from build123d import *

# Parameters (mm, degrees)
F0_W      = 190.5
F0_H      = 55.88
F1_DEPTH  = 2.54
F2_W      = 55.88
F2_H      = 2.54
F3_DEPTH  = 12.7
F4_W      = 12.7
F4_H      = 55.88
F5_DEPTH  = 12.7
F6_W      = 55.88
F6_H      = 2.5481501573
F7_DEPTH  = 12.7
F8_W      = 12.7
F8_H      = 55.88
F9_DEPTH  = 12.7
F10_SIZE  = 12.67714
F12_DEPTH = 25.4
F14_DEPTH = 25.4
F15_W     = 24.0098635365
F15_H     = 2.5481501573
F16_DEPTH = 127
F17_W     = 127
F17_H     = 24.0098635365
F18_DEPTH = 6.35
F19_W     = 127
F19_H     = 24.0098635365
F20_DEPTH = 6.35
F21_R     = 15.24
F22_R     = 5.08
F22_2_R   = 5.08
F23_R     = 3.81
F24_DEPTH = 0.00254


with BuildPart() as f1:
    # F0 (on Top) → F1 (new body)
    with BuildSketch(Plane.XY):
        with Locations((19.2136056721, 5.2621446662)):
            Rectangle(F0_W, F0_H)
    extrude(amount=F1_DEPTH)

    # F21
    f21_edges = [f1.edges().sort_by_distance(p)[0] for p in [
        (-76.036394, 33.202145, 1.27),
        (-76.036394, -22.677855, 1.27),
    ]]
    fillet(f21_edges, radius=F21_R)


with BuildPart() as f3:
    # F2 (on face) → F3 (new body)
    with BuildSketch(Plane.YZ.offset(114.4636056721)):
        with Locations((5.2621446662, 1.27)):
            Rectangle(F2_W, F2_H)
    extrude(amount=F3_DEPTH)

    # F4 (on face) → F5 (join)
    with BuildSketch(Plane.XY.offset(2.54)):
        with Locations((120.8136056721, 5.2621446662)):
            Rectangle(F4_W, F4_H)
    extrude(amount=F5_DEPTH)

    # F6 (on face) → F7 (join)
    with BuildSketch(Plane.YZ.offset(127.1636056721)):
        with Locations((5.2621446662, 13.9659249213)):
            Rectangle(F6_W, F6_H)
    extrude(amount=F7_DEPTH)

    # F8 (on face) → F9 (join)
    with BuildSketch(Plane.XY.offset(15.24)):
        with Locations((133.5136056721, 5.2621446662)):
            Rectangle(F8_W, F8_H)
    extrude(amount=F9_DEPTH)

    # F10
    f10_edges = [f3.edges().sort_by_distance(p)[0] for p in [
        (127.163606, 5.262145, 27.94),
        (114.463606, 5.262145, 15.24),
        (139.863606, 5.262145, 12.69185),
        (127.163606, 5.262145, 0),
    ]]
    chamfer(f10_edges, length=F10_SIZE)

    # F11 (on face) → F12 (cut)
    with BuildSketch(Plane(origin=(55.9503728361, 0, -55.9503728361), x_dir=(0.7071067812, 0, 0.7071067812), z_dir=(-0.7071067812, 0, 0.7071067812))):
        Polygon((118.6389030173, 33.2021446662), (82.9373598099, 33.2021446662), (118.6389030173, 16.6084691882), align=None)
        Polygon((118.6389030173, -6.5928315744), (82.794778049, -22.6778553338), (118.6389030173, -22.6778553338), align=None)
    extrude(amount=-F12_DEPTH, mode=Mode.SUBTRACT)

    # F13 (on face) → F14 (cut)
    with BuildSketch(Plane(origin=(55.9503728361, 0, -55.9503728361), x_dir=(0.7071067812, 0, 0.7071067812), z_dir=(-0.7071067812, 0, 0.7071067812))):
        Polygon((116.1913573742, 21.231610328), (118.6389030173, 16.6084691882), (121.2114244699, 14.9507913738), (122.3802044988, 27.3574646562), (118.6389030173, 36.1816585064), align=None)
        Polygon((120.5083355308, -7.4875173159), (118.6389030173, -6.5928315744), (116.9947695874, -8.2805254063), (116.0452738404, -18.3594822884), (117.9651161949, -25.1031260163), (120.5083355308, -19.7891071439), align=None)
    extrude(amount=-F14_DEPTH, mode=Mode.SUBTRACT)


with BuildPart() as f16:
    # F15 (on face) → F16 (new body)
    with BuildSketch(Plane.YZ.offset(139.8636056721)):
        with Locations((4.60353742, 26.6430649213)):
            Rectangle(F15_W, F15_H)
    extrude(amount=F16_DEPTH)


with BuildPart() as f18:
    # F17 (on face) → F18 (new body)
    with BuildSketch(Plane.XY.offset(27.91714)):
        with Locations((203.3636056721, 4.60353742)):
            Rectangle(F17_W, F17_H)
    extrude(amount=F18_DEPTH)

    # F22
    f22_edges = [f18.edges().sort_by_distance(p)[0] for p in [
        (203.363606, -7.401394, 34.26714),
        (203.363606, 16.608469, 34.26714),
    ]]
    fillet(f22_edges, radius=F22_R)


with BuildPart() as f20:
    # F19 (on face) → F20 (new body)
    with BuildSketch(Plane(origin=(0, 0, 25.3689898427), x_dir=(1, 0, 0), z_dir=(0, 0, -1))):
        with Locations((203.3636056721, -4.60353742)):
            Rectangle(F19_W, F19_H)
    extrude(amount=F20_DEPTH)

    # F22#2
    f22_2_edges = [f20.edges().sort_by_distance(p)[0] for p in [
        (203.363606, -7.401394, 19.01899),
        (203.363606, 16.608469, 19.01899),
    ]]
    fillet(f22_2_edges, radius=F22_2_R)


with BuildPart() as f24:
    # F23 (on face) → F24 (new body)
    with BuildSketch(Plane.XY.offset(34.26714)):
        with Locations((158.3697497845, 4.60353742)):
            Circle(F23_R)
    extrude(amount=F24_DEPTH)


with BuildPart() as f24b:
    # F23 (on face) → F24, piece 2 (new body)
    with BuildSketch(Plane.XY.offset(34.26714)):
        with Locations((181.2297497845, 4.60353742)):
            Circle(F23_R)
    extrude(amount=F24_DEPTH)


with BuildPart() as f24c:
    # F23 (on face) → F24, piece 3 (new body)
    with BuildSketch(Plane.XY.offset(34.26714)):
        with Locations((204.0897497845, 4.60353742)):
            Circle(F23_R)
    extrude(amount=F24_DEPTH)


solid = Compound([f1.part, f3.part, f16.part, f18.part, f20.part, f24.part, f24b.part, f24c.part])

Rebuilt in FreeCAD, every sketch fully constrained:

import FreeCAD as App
import Part
import Sketcher

V = App.Vector
Q = App.Units.Quantity


def edges_at(feature, points):
    """Names of the edges that pass closest to the given points."""
    edges = feature.Shape.Edges
    near = lambda p: min(range(len(edges)), key=lambda i: edges[i].distToShape(Part.Vertex(*p))[0])
    return sorted({f"Edge{near(p) + 1}" for p in points})


def add_polygon(sketch, points):
    """Adds a closed chain of lines whose ends are joined by coincident constraints."""
    first, n = sketch.GeometryCount, len(points)
    for a, b in zip(points, points[1:] + points[:1]):
        sketch.addGeometry(Part.LineSegment(App.Vector(*a, 0), App.Vector(*b, 0)), False)
    for i in range(n):
        sketch.addConstraint(Sketcher.Constraint("Coincident", first + i, 2, first + (i + 1) % n, 1))

doc = App.newDocument("Part")
params = doc.addObject("Spreadsheet::Sheet", "Params")
for row, (alias, value) in enumerate([
    ("sketch1_width", "7.5 in"),
    ("sketch1_height", "2.2 in"),
    ("pad1_length", "0.1 in"),
    ("fillet_radius", "0.6 in"),
    ("sketch2_width", "2.2 in"),
    ("sketch2_height", "0.1 in"),
    ("pad2_length", "0.5 in"),
    ("sketch3_width", "0.5 in"),
    ("sketch3_height", "2.2 in"),
    ("pad3_length", "0.5 in"),
    ("sketch4_width", "2.2 in"),
    ("pad4_length", "0.5 in"),
    ("sketch5_width", "0.5 in"),
    ("sketch5_height", "2.2 in"),
    ("pad5_length", "0.5 in"),
    ("chamfer_size", "0.4991 in"),
    ("pocket1_length", "1 in"),
    ("pocket2_length", "1 in"),
    ("pad6_length", "5 in"),
    ("sketch9_width", "5 in"),
    ("pad7_length", "0.25 in"),
    ("fillet2_radius", "0.2 in"),
    ("sketch10_width", "5 in"),
    ("pad8_length", "0.25 in"),
    ("fillet3_radius", "0.2 in"),
    ("sketch11_diameter", "0.3 in"),
    ("pad9_length", "0.0001 in"),
    ("sketch12_diameter", "0.3 in"),
    ("pad10_length", "0.0001 in"),
    ("sketch13_diameter", "0.3 in"),
    ("pad11_length", "0.0001 in"),
], start=1):
    params.set(f"A{row}", alias)
    params.set(f"B{row}", "=" + value)
    params.setAlias(f"B{row}", alias)

body = doc.addObject("PartDesign::Body", "Body")

sketch1 = body.newObject("Sketcher::SketchObject", "Sketch")
sketch1.AttachmentSupport = (doc.getObject("XY_Plane"), [""])
sketch1.MapMode = "FlatFace"
add_polygon(sketch1, [(-76.036394, 33.202145), (-76.036394, -22.677855), (114.463606, -22.677855), (114.463606, 33.202145)])
sketch1.addConstraint(Sketcher.Constraint("Vertical", 0))
sketch1.addConstraint(Sketcher.Constraint("Horizontal", 1))
sketch1.addConstraint(Sketcher.Constraint("Vertical", 2))
sketch1.addConstraint(Sketcher.Constraint("Horizontal", 3))
sketch1.addConstraint(Sketcher.Constraint("DistanceX", 1, 1, 1, 2, Q("7.5 in")))
sketch1.addConstraint(Sketcher.Constraint("DistanceY", 0, 2, 0, 1, Q("2.2 in")))
sketch1.addConstraint(Sketcher.Constraint("DistanceX", 0, 2, -1, 1, Q("76.036394 mm")))
sketch1.addConstraint(Sketcher.Constraint("DistanceY", 0, 2, -1, 1, Q("22.677855 mm")))
sketch1.setExpression("Constraints[8]", "Params.sketch1_width")
sketch1.setExpression("Constraints[9]", "Params.sketch1_height")
pad1 = body.newObject("PartDesign::Pad", "Pad")
pad1.Profile = sketch1
pad1.setExpression("Length", "Params.pad1_length")
doc.recompute()

fillet = body.newObject("PartDesign::Fillet", "Fillet")
fillet.Base = (pad1, edges_at(pad1, [(-76.036, 33.202, 1.27), (-76.036, -22.678, 1.27)]))
fillet.setExpression("Radius", "Params.fillet_radius")
body2 = doc.addObject("PartDesign::Body", "Body001")

sketch2 = body2.newObject("Sketcher::SketchObject", "Sketch001")
sketch2.AttachmentSupport = (doc.getObject("YZ_Plane001"), [""])
sketch2.MapMode = "FlatFace"
sketch2.AttachmentOffset = App.Placement(V(0, 0, 114.463606), App.Rotation())
add_polygon(sketch2, [(-22.677855, 2.54), (-22.677855, 0), (33.202145, 0), (33.202145, 2.54)])
sketch2.addConstraint(Sketcher.Constraint("Vertical", 0))
sketch2.addConstraint(Sketcher.Constraint("Horizontal", 1))
sketch2.addConstraint(Sketcher.Constraint("Vertical", 2))
sketch2.addConstraint(Sketcher.Constraint("Horizontal", 3))
sketch2.addConstraint(Sketcher.Constraint("PointOnObject", 0, 2, -1))
sketch2.addConstraint(Sketcher.Constraint("DistanceX", 1, 1, 1, 2, Q("2.2 in")))
sketch2.addConstraint(Sketcher.Constraint("DistanceY", 0, 2, 0, 1, Q("0.1 in")))
sketch2.addConstraint(Sketcher.Constraint("DistanceX", 0, 2, -1, 1, Q("22.677855 mm")))
sketch2.setExpression("Constraints[9]", "Params.sketch2_width")
sketch2.setExpression("Constraints[10]", "Params.sketch2_height")
pad2 = body2.newObject("PartDesign::Pad", "Pad001")
pad2.Profile = sketch2
pad2.setExpression("Length", "Params.pad2_length")

sketch3 = body2.newObject("Sketcher::SketchObject", "Sketch002")
sketch3.AttachmentSupport = (doc.getObject("XY_Plane001"), [""])
sketch3.MapMode = "FlatFace"
sketch3.AttachmentOffset = App.Placement(V(0, 0, 0.1 * 25.4), App.Rotation())
add_polygon(sketch3, [(114.463606, 33.202145), (114.463606, -22.677855), (127.163606, -22.677855), (127.163606, 33.202145)])
sketch3.addConstraint(Sketcher.Constraint("Vertical", 0))
sketch3.addConstraint(Sketcher.Constraint("Horizontal", 1))
sketch3.addConstraint(Sketcher.Constraint("Vertical", 2))
sketch3.addConstraint(Sketcher.Constraint("Horizontal", 3))
sketch3.addConstraint(Sketcher.Constraint("DistanceX", 1, 1, 1, 2, Q("0.5 in")))
sketch3.addConstraint(Sketcher.Constraint("DistanceY", 0, 2, 0, 1, Q("2.2 in")))
sketch3.addConstraint(Sketcher.Constraint("DistanceX", -1, 1, 0, 2, Q("114.463606 mm")))
sketch3.addConstraint(Sketcher.Constraint("DistanceY", 0, 2, -1, 1, Q("22.677855 mm")))
sketch3.setExpression("Constraints[8]", "Params.sketch3_width")
sketch3.setExpression("Constraints[9]", "Params.sketch3_height")
pad3 = body2.newObject("PartDesign::Pad", "Pad002")
pad3.Profile = sketch3
pad3.setExpression("Length", "Params.pad3_length")

sketch4 = body2.newObject("Sketcher::SketchObject", "Sketch003")
sketch4.AttachmentSupport = (doc.getObject("YZ_Plane001"), [""])
sketch4.MapMode = "FlatFace"
sketch4.AttachmentOffset = App.Placement(V(0, 0, 127.163606), App.Rotation())
add_polygon(sketch4, [(-22.677855, 15.24), (-22.677855, 12.69185), (33.202145, 12.69185), (33.202145, 15.24)])
sketch4.addConstraint(Sketcher.Constraint("Vertical", 0))
sketch4.addConstraint(Sketcher.Constraint("Horizontal", 1))
sketch4.addConstraint(Sketcher.Constraint("Vertical", 2))
sketch4.addConstraint(Sketcher.Constraint("Horizontal", 3))
sketch4.addConstraint(Sketcher.Constraint("DistanceX", 1, 1, 1, 2, Q("2.2 in")))
sketch4.addConstraint(Sketcher.Constraint("DistanceY", -1, 1, 2, 2, Q("0.6 in")))
sketch4.addConstraint(Sketcher.Constraint("DistanceY", 0, 2, 0, 1, Q("2.54815 mm")))
sketch4.addConstraint(Sketcher.Constraint("DistanceX", 0, 2, -1, 1, Q("22.677855 mm")))
sketch4.setExpression("Constraints[8]", "Params.sketch4_width")
pad4 = body2.newObject("PartDesign::Pad", "Pad003")
pad4.Profile = sketch4
pad4.setExpression("Length", "Params.pad4_length")

sketch5 = body2.newObject("Sketcher::SketchObject", "Sketch004")
sketch5.AttachmentSupport = (doc.getObject("XY_Plane001"), [""])
sketch5.MapMode = "FlatFace"
sketch5.AttachmentOffset = App.Placement(V(0, 0, 0.6 * 25.4), App.Rotation())
add_polygon(sketch5, [(127.163606, 33.202145), (127.163606, -22.677855), (139.863606, -22.677855), (139.863606, 33.202145)])
sketch5.addConstraint(Sketcher.Constraint("Vertical", 0))
sketch5.addConstraint(Sketcher.Constraint("Horizontal", 1))
sketch5.addConstraint(Sketcher.Constraint("Vertical", 2))
sketch5.addConstraint(Sketcher.Constraint("Horizontal", 3))
sketch5.addConstraint(Sketcher.Constraint("DistanceX", 1, 1, 1, 2, Q("0.5 in")))
sketch5.addConstraint(Sketcher.Constraint("DistanceY", 0, 2, 0, 1, Q("2.2 in")))
sketch5.addConstraint(Sketcher.Constraint("DistanceX", -1, 1, 0, 2, Q("127.163606 mm")))
sketch5.addConstraint(Sketcher.Constraint("DistanceY", 0, 2, -1, 1, Q("22.677855 mm")))
sketch5.setExpression("Constraints[8]", "Params.sketch5_width")
sketch5.setExpression("Constraints[9]", "Params.sketch5_height")
pad5 = body2.newObject("PartDesign::Pad", "Pad004")
pad5.Profile = sketch5
pad5.setExpression("Length", "Params.pad5_length")
doc.recompute()

chamfer = body2.newObject("PartDesign::Chamfer", "Chamfer")
chamfer.Base = (pad5, edges_at(pad5, [
    (127.164, 5.262, 27.94),
    (114.464, 5.262, 15.24),
    (139.864, 5.262, 12.692),
    (127.164, 5.262, 0),
]))
chamfer.setExpression("Size", "Params.chamfer_size")

sketch6 = body2.newObject("Sketcher::SketchObject", "Sketch005")
sketch6.Placement = App.Placement(V(55.950373, 0, -55.950373), App.Rotation(V(0.707106781, 0, 0.707106781), V(0, 0.999999999, 0), V(-0.707106781, 0, 0.707106781), "ZXY"))
add_polygon(sketch6, [(118.638903, 33.202145), (82.93736, 33.202145), (118.638903, 16.608469)])
add_polygon(sketch6, [(118.638903, -6.592832), (82.794778, -22.677855), (118.638903, -22.677855)])
sketch6.addConstraint(Sketcher.Constraint("Horizontal", 0))
sketch6.addConstraint(Sketcher.Constraint("Vertical", 2))
sketch6.addConstraint(Sketcher.Constraint("Horizontal", 4))
sketch6.addConstraint(Sketcher.Constraint("Vertical", 5))
sketch6.addConstraint(Sketcher.Constraint("Vertical", 2, 2, 4, 2))
sketch6.addConstraint(Sketcher.Constraint("DistanceY", 3, 2, 0, 2, Q("2.2 in")))
sketch6.addConstraint(Sketcher.Constraint("DistanceY", 5, 2, 1, 2, Q("23.201301 mm")))
sketch6.addConstraint(Sketcher.Constraint("DistanceX", 0, 2, 0, 1, Q("35.701543 mm")))
sketch6.addConstraint(Sketcher.Constraint("DistanceX", 4, 1, 4, 2, Q("35.844125 mm")))
sketch6.addConstraint(Sketcher.Constraint("DistanceY", 2, 1, 2, 2, Q("16.593675 mm")))
sketch6.addConstraint(Sketcher.Constraint("DistanceX", -1, 1, 0, 2, Q("82.93736 mm")))
sketch6.addConstraint(Sketcher.Constraint("DistanceY", -1, 1, 1, 2, Q("16.608469 mm")))
pocket1 = body2.newObject("PartDesign::Pocket", "Pocket")
pocket1.Profile = sketch6
pocket1.setExpression("Length", "Params.pocket1_length")

sketch7 = body2.newObject("Sketcher::SketchObject", "Sketch006")
sketch7.Placement = App.Placement(V(55.950373, 0, -55.950373), App.Rotation(V(0.707106781, 0, 0.707106781), V(0, 0.999999999, 0), V(-0.707106781, 0, 0.707106781), "ZXY"))
add_polygon(sketch7, [(116.191357, 21.23161), (118.638903, 16.608469), (121.211424, 14.950791), (122.380204, 27.357465), (118.638903, 36.181658)])
add_polygon(sketch7, [(120.508335, -7.487517), (118.638903, -6.592832), (116.99477, -8.280525), (116.045274, -18.359482), (117.965116, -25.103126), (120.508335, -19.789107)])
sketch7.addConstraint(Sketcher.Constraint("Vertical", 10))
sketch7.addConstraint(Sketcher.Constraint("Parallel", 2, 7))
sketch7.addConstraint(Sketcher.Constraint("Perpendicular", 5, 9))
sketch7.addConstraint(Sketcher.Constraint("Vertical", 0, 2, 3, 2))
sketch7.addConstraint(Sketcher.Constraint("Vertical", 3, 2, 5, 2))
sketch7.addConstraint(Sketcher.Constraint("Distance", 8, Q("7.011599 mm")))
sketch7.addConstraint(Sketcher.Constraint("DistanceY", 10, 1, 10, 2, Q("12.30159 mm")))
sketch7.addConstraint(Sketcher.Constraint("DistanceX", 0, 2, 2, 2, Q("3.741301 mm")))
sketch7.addConstraint(Sketcher.Constraint("DistanceY", 5, 2, 0, 2, Q("23.201301 mm")))
sketch7.addConstraint(Sketcher.Constraint("DistanceY", 8, 2, 6, 2, Q("16.822601 mm")))
sketch7.addConstraint(Sketcher.Constraint("DistanceY", 9, 2, 1, 2, Q("34.739898 mm")))
sketch7.addConstraint(Sketcher.Constraint("Distance", 6, Q("2.356159 mm")))
sketch7.addConstraint(Sketcher.Constraint("DistanceY", -1, 1, 0, 2, Q("16.608469 mm")))
sketch7.addConstraint(Sketcher.Constraint("DistanceY", -1, 1, 1, 2, Q("14.950791 mm")))
sketch7.addConstraint(Sketcher.Constraint("DistanceY", -1, 1, 3, 2, Q("36.181658 mm")))
sketch7.addConstraint(Sketcher.Constraint("DistanceY", -1, 1, 4, 2, Q("21.23161 mm")))
sketch7.addConstraint(Sketcher.Constraint("DistanceX", -1, 1, 6, 2, Q("116.99477 mm")))
sketch7.addConstraint(Sketcher.Constraint("DistanceX", 0, 2, 1, 2, Q("2.572521 mm")))
sketch7.addConstraint(Sketcher.Constraint("DistanceY", 6, 2, 2, 2, Q("35.63799 mm")))
sketch7.addConstraint(Sketcher.Constraint("DistanceX", 7, 2, 5, 2, Q("2.593629 mm")))
sketch7.addConstraint(Sketcher.Constraint("DistanceY", 7, 2, 5, 2, Q("11.766651 mm")))
sketch7.addConstraint(Sketcher.Constraint("Distance", 0, Q("5.231053 mm")))
pocket2 = body2.newObject("PartDesign::Pocket", "Pocket001")
pocket2.Profile = sketch7
pocket2.setExpression("Length", "Params.pocket2_length")
body3 = doc.addObject("PartDesign::Body", "Body002")

sketch8 = body3.newObject("Sketcher::SketchObject", "Sketch007")
sketch8.AttachmentSupport = (doc.getObject("YZ_Plane002"), [""])
sketch8.MapMode = "FlatFace"
sketch8.AttachmentOffset = App.Placement(V(0, 0, 139.863606), App.Rotation())
add_polygon(sketch8, [(-7.401394, 27.91714), (-7.401394, 25.36899), (16.608469, 25.36899), (16.608469, 27.91714)])
sketch8.addConstraint(Sketcher.Constraint("Vertical", 0))
sketch8.addConstraint(Sketcher.Constraint("Horizontal", 1))
sketch8.addConstraint(Sketcher.Constraint("Vertical", 2))
sketch8.addConstraint(Sketcher.Constraint("Horizontal", 3))
sketch8.addConstraint(Sketcher.Constraint("DistanceY", -1, 1, 2, 2, Q("1.0991 in")))
sketch8.addConstraint(Sketcher.Constraint("DistanceY", 0, 2, 0, 1, Q("2.54815 mm")))
sketch8.addConstraint(Sketcher.Constraint("DistanceX", 1, 1, 1, 2, Q("24.009864 mm")))
sketch8.addConstraint(Sketcher.Constraint("DistanceX", -1, 1, 1, 2, Q("16.608469 mm")))
pad6 = body3.newObject("PartDesign::Pad", "Pad005")
pad6.Profile = sketch8
pad6.setExpression("Length", "Params.pad6_length")
body4 = doc.addObject("PartDesign::Body", "Body003")

sketch9 = body4.newObject("Sketcher::SketchObject", "Sketch008")
sketch9.AttachmentSupport = (doc.getObject("XY_Plane003"), [""])
sketch9.MapMode = "FlatFace"
sketch9.AttachmentOffset = App.Placement(V(0, 0, 1.0991 * 25.4), App.Rotation())
add_polygon(sketch9, [(139.863606, 16.608469), (139.863606, -7.401394), (266.863606, -7.401394), (266.863606, 16.608469)])
sketch9.addConstraint(Sketcher.Constraint("Vertical", 0))
sketch9.addConstraint(Sketcher.Constraint("Horizontal", 1))
sketch9.addConstraint(Sketcher.Constraint("Vertical", 2))
sketch9.addConstraint(Sketcher.Constraint("Horizontal", 3))
sketch9.addConstraint(Sketcher.Constraint("DistanceX", 1, 1, 1, 2, Q("5 in")))
sketch9.addConstraint(Sketcher.Constraint("DistanceY", 0, 2, 0, 1, Q("24.009864 mm")))
sketch9.addConstraint(Sketcher.Constraint("DistanceY", -1, 1, 2, 2, Q("16.608469 mm")))
sketch9.addConstraint(Sketcher.Constraint("DistanceX", -1, 1, 0, 2, Q("139.863606 mm")))
sketch9.setExpression("Constraints[8]", "Params.sketch9_width")
pad7 = body4.newObject("PartDesign::Pad", "Pad006")
pad7.Profile = sketch9
pad7.setExpression("Length", "Params.pad7_length")
doc.recompute()

fillet2 = body4.newObject("PartDesign::Fillet", "Fillet001")
fillet2.Base = (pad7, edges_at(pad7, [(203.364, -7.401, 34.267), (203.364, 16.608, 34.267)]))
fillet2.setExpression("Radius", "Params.fillet2_radius")
body5 = doc.addObject("PartDesign::Body", "Body004")

sketch10 = body5.newObject("Sketcher::SketchObject", "Sketch009")
sketch10.AttachmentSupport = (doc.getObject("XY_Plane004"), [""])
sketch10.MapMode = "FlatFace"
sketch10.AttachmentOffset = App.Placement(V(0, 0, 25.36899), App.Rotation())
add_polygon(sketch10, [(139.863606, -7.401394), (139.863606, 16.608469), (266.863606, 16.608469), (266.863606, -7.401394)])
sketch10.addConstraint(Sketcher.Constraint("Vertical", 0))
sketch10.addConstraint(Sketcher.Constraint("Horizontal", 1))
sketch10.addConstraint(Sketcher.Constraint("Vertical", 2))
sketch10.addConstraint(Sketcher.Constraint("Horizontal", 3))
sketch10.addConstraint(Sketcher.Constraint("DistanceX", 1, 1, 1, 2, Q("5 in")))
sketch10.addConstraint(Sketcher.Constraint("DistanceY", 0, 1, 0, 2, Q("24.009864 mm")))
sketch10.addConstraint(Sketcher.Constraint("DistanceY", -1, 1, 0, 2, Q("16.608469 mm")))
sketch10.addConstraint(Sketcher.Constraint("DistanceX", -1, 1, 0, 2, Q("139.863606 mm")))
sketch10.setExpression("Constraints[8]", "Params.sketch10_width")
pad8 = body5.newObject("PartDesign::Pad", "Pad007")
pad8.Profile = sketch10
pad8.setExpression("Length", "Params.pad8_length")
pad8.Reversed = True
doc.recompute()

fillet3 = body5.newObject("PartDesign::Fillet", "Fillet002")
fillet3.Base = (pad8, edges_at(pad8, [(203.364, -7.401, 19.019), (203.364, 16.608, 19.019)]))
fillet3.setExpression("Radius", "Params.fillet3_radius")
body6 = doc.addObject("PartDesign::Body", "Body005")

sketch11 = body6.newObject("Sketcher::SketchObject", "Sketch010")
sketch11.AttachmentSupport = (doc.getObject("XY_Plane005"), [""])
sketch11.MapMode = "FlatFace"
sketch11.AttachmentOffset = App.Placement(V(0, 0, 1.3491 * 25.4), App.Rotation())
sketch11.addGeometry(Part.Circle(V(158.36975, 4.603537, 0), V(0, 0, 1), 3.81), False)
sketch11.addConstraint(Sketcher.Constraint("Diameter", 0, Q("0.3 in")))
sketch11.addConstraint(Sketcher.Constraint("DistanceX", -1, 1, 0, 3, Q("158.36975 mm")))
sketch11.addConstraint(Sketcher.Constraint("DistanceY", -1, 1, 0, 3, Q("4.603537 mm")))
sketch11.setExpression("Constraints[0]", "Params.sketch11_diameter")
pad9 = body6.newObject("PartDesign::Pad", "Pad008")
pad9.Profile = sketch11
pad9.setExpression("Length", "Params.pad9_length")
body7 = doc.addObject("PartDesign::Body", "Body006")

sketch12 = body7.newObject("Sketcher::SketchObject", "Sketch011")
sketch12.AttachmentSupport = (doc.getObject("XY_Plane006"), [""])
sketch12.MapMode = "FlatFace"
sketch12.AttachmentOffset = App.Placement(V(0, 0, 1.3491 * 25.4), App.Rotation())
sketch12.addGeometry(Part.Circle(V(181.22975, 4.603537, 0), V(0, 0, 1), 3.81), False)
sketch12.addConstraint(Sketcher.Constraint("Diameter", 0, Q("0.3 in")))
sketch12.addConstraint(Sketcher.Constraint("DistanceX", -1, 1, 0, 3, Q("181.22975 mm")))
sketch12.addConstraint(Sketcher.Constraint("DistanceY", -1, 1, 0, 3, Q("4.603537 mm")))
sketch12.setExpression("Constraints[0]", "Params.sketch12_diameter")
pad10 = body7.newObject("PartDesign::Pad", "Pad009")
pad10.Profile = sketch12
pad10.setExpression("Length", "Params.pad10_length")
body8 = doc.addObject("PartDesign::Body", "Body007")

sketch13 = body8.newObject("Sketcher::SketchObject", "Sketch012")
sketch13.AttachmentSupport = (doc.getObject("XY_Plane007"), [""])
sketch13.MapMode = "FlatFace"
sketch13.AttachmentOffset = App.Placement(V(0, 0, 1.3491 * 25.4), App.Rotation())
sketch13.addGeometry(Part.Circle(V(204.08975, 4.603537, 0), V(0, 0, 1), 3.81), False)
sketch13.addConstraint(Sketcher.Constraint("Diameter", 0, Q("0.3 in")))
sketch13.addConstraint(Sketcher.Constraint("DistanceX", -1, 1, 0, 3, Q("204.08975 mm")))
sketch13.addConstraint(Sketcher.Constraint("DistanceY", -1, 1, 0, 3, Q("4.603537 mm")))
sketch13.setExpression("Constraints[0]", "Params.sketch13_diameter")
pad11 = body8.newObject("PartDesign::Pad", "Pad010")
pad11.Profile = sketch13
pad11.setExpression("Length", "Params.pad11_length")

doc.recompute()
